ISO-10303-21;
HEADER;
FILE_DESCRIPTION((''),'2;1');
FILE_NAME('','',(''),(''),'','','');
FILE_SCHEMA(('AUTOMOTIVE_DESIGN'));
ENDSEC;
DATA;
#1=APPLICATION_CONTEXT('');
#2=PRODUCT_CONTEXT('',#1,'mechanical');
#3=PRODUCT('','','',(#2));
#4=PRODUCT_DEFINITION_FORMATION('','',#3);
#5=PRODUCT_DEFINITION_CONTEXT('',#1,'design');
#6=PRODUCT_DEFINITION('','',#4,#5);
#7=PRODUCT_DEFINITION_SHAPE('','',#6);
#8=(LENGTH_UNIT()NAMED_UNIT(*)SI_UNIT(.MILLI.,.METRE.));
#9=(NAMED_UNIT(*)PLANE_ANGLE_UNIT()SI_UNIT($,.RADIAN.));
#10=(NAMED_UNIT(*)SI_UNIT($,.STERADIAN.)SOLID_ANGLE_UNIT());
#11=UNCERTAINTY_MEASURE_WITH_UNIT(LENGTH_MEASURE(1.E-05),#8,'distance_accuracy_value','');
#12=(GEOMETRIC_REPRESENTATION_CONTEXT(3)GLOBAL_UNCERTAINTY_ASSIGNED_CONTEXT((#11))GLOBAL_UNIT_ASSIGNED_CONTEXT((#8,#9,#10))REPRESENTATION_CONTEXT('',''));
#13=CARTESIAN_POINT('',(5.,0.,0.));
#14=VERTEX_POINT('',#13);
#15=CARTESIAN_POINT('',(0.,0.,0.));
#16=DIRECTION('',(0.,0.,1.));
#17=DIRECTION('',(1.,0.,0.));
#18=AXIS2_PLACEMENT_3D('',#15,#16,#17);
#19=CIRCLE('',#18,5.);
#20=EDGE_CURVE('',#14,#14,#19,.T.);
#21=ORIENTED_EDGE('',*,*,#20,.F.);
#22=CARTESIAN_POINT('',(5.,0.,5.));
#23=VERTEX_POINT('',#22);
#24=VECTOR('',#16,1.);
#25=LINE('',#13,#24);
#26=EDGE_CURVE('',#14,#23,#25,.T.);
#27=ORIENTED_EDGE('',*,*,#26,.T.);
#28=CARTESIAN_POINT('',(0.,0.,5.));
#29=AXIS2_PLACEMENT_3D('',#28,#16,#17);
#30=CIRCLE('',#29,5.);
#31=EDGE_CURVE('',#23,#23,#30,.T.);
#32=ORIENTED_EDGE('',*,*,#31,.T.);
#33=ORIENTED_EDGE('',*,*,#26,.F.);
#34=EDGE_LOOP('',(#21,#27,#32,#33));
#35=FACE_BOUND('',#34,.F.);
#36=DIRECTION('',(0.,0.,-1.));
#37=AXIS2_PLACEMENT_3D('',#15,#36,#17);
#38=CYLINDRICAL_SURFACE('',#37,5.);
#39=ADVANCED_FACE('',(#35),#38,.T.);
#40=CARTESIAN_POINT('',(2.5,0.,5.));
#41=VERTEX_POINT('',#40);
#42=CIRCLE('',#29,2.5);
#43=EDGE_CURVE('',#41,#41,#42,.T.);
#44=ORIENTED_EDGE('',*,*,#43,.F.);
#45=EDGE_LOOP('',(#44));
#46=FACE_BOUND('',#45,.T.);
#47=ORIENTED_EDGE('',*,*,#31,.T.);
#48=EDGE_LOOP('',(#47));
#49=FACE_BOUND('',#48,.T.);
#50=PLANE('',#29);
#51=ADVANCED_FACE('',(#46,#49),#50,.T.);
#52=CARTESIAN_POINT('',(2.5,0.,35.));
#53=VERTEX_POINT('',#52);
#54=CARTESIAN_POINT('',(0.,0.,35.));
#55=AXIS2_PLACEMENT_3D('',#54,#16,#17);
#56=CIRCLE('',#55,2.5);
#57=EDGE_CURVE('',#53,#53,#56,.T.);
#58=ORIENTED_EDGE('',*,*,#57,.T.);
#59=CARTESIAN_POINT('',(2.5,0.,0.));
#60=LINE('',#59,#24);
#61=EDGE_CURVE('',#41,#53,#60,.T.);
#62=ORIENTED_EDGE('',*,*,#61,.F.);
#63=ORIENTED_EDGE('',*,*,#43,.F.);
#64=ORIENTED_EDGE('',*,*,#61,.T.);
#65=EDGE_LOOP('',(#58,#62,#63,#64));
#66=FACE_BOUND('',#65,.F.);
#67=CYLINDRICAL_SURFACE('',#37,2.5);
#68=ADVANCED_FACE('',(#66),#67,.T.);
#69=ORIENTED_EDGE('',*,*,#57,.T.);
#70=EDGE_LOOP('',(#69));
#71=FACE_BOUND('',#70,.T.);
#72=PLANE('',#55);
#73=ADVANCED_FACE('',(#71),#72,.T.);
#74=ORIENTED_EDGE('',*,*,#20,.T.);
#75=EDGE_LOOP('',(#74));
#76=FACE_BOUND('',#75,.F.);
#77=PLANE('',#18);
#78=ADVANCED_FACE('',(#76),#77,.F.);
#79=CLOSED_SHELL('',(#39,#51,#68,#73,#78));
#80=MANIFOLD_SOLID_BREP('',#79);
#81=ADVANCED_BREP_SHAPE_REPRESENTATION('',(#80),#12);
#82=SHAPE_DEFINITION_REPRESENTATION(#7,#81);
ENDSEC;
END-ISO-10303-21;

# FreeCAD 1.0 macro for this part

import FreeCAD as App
import Part
import Sketcher
Q = App.Units.Quantity

doc = App.newDocument("Part")
body = doc.addObject("PartDesign::Body", "Body")

# Sketch on XY plane
sketch1 = body.newObject("Sketcher::SketchObject", "Sketch")
sketch1.AttachmentSupport = (doc.getObject("XY_Plane"), [""])
sketch1.MapMode = "FlatFace"
sketch1.addGeometry(Part.Circle(App.Vector(0, 0, 0), App.Vector(0, 0, 1), 2.5), False)
sketch1.addConstraint(Sketcher.Constraint("Coincident", 0, 3, -1, 1))
sketch1.addConstraint(Sketcher.Constraint("Diameter", 0, Q("5 mm")))
pad1 = body.newObject("PartDesign::Pad", "Pad")
pad1.Profile = sketch1
pad1.Length = 35

# Sketch on XY plane
sketch2 = body.newObject("Sketcher::SketchObject", "Sketch001")
sketch2.AttachmentSupport = (doc.getObject("XY_Plane"), [""])
sketch2.MapMode = "FlatFace"
sketch2.addGeometry(Part.Circle(App.Vector(0, 0, 0), App.Vector(0, 0, 1), 5), False)
sketch2.addGeometry(Part.Circle(App.Vector(0, 0, 0), App.Vector(0, 0, 1), 2.5), False)
sketch2.addConstraint(Sketcher.Constraint("Coincident", 0, 3, -1, 1))
sketch2.addConstraint(Sketcher.Constraint("Coincident", 1, 3, -1, 1))
sketch2.addConstraint(Sketcher.Constraint("Diameter", 0, Q("10 mm")))
sketch2.addConstraint(Sketcher.Constraint("Diameter", 1, Q("5 mm")))
pad2 = body.newObject("PartDesign::Pad", "Pad001")
pad2.Profile = sketch2
pad2.Length = 5

doc.recompute()
